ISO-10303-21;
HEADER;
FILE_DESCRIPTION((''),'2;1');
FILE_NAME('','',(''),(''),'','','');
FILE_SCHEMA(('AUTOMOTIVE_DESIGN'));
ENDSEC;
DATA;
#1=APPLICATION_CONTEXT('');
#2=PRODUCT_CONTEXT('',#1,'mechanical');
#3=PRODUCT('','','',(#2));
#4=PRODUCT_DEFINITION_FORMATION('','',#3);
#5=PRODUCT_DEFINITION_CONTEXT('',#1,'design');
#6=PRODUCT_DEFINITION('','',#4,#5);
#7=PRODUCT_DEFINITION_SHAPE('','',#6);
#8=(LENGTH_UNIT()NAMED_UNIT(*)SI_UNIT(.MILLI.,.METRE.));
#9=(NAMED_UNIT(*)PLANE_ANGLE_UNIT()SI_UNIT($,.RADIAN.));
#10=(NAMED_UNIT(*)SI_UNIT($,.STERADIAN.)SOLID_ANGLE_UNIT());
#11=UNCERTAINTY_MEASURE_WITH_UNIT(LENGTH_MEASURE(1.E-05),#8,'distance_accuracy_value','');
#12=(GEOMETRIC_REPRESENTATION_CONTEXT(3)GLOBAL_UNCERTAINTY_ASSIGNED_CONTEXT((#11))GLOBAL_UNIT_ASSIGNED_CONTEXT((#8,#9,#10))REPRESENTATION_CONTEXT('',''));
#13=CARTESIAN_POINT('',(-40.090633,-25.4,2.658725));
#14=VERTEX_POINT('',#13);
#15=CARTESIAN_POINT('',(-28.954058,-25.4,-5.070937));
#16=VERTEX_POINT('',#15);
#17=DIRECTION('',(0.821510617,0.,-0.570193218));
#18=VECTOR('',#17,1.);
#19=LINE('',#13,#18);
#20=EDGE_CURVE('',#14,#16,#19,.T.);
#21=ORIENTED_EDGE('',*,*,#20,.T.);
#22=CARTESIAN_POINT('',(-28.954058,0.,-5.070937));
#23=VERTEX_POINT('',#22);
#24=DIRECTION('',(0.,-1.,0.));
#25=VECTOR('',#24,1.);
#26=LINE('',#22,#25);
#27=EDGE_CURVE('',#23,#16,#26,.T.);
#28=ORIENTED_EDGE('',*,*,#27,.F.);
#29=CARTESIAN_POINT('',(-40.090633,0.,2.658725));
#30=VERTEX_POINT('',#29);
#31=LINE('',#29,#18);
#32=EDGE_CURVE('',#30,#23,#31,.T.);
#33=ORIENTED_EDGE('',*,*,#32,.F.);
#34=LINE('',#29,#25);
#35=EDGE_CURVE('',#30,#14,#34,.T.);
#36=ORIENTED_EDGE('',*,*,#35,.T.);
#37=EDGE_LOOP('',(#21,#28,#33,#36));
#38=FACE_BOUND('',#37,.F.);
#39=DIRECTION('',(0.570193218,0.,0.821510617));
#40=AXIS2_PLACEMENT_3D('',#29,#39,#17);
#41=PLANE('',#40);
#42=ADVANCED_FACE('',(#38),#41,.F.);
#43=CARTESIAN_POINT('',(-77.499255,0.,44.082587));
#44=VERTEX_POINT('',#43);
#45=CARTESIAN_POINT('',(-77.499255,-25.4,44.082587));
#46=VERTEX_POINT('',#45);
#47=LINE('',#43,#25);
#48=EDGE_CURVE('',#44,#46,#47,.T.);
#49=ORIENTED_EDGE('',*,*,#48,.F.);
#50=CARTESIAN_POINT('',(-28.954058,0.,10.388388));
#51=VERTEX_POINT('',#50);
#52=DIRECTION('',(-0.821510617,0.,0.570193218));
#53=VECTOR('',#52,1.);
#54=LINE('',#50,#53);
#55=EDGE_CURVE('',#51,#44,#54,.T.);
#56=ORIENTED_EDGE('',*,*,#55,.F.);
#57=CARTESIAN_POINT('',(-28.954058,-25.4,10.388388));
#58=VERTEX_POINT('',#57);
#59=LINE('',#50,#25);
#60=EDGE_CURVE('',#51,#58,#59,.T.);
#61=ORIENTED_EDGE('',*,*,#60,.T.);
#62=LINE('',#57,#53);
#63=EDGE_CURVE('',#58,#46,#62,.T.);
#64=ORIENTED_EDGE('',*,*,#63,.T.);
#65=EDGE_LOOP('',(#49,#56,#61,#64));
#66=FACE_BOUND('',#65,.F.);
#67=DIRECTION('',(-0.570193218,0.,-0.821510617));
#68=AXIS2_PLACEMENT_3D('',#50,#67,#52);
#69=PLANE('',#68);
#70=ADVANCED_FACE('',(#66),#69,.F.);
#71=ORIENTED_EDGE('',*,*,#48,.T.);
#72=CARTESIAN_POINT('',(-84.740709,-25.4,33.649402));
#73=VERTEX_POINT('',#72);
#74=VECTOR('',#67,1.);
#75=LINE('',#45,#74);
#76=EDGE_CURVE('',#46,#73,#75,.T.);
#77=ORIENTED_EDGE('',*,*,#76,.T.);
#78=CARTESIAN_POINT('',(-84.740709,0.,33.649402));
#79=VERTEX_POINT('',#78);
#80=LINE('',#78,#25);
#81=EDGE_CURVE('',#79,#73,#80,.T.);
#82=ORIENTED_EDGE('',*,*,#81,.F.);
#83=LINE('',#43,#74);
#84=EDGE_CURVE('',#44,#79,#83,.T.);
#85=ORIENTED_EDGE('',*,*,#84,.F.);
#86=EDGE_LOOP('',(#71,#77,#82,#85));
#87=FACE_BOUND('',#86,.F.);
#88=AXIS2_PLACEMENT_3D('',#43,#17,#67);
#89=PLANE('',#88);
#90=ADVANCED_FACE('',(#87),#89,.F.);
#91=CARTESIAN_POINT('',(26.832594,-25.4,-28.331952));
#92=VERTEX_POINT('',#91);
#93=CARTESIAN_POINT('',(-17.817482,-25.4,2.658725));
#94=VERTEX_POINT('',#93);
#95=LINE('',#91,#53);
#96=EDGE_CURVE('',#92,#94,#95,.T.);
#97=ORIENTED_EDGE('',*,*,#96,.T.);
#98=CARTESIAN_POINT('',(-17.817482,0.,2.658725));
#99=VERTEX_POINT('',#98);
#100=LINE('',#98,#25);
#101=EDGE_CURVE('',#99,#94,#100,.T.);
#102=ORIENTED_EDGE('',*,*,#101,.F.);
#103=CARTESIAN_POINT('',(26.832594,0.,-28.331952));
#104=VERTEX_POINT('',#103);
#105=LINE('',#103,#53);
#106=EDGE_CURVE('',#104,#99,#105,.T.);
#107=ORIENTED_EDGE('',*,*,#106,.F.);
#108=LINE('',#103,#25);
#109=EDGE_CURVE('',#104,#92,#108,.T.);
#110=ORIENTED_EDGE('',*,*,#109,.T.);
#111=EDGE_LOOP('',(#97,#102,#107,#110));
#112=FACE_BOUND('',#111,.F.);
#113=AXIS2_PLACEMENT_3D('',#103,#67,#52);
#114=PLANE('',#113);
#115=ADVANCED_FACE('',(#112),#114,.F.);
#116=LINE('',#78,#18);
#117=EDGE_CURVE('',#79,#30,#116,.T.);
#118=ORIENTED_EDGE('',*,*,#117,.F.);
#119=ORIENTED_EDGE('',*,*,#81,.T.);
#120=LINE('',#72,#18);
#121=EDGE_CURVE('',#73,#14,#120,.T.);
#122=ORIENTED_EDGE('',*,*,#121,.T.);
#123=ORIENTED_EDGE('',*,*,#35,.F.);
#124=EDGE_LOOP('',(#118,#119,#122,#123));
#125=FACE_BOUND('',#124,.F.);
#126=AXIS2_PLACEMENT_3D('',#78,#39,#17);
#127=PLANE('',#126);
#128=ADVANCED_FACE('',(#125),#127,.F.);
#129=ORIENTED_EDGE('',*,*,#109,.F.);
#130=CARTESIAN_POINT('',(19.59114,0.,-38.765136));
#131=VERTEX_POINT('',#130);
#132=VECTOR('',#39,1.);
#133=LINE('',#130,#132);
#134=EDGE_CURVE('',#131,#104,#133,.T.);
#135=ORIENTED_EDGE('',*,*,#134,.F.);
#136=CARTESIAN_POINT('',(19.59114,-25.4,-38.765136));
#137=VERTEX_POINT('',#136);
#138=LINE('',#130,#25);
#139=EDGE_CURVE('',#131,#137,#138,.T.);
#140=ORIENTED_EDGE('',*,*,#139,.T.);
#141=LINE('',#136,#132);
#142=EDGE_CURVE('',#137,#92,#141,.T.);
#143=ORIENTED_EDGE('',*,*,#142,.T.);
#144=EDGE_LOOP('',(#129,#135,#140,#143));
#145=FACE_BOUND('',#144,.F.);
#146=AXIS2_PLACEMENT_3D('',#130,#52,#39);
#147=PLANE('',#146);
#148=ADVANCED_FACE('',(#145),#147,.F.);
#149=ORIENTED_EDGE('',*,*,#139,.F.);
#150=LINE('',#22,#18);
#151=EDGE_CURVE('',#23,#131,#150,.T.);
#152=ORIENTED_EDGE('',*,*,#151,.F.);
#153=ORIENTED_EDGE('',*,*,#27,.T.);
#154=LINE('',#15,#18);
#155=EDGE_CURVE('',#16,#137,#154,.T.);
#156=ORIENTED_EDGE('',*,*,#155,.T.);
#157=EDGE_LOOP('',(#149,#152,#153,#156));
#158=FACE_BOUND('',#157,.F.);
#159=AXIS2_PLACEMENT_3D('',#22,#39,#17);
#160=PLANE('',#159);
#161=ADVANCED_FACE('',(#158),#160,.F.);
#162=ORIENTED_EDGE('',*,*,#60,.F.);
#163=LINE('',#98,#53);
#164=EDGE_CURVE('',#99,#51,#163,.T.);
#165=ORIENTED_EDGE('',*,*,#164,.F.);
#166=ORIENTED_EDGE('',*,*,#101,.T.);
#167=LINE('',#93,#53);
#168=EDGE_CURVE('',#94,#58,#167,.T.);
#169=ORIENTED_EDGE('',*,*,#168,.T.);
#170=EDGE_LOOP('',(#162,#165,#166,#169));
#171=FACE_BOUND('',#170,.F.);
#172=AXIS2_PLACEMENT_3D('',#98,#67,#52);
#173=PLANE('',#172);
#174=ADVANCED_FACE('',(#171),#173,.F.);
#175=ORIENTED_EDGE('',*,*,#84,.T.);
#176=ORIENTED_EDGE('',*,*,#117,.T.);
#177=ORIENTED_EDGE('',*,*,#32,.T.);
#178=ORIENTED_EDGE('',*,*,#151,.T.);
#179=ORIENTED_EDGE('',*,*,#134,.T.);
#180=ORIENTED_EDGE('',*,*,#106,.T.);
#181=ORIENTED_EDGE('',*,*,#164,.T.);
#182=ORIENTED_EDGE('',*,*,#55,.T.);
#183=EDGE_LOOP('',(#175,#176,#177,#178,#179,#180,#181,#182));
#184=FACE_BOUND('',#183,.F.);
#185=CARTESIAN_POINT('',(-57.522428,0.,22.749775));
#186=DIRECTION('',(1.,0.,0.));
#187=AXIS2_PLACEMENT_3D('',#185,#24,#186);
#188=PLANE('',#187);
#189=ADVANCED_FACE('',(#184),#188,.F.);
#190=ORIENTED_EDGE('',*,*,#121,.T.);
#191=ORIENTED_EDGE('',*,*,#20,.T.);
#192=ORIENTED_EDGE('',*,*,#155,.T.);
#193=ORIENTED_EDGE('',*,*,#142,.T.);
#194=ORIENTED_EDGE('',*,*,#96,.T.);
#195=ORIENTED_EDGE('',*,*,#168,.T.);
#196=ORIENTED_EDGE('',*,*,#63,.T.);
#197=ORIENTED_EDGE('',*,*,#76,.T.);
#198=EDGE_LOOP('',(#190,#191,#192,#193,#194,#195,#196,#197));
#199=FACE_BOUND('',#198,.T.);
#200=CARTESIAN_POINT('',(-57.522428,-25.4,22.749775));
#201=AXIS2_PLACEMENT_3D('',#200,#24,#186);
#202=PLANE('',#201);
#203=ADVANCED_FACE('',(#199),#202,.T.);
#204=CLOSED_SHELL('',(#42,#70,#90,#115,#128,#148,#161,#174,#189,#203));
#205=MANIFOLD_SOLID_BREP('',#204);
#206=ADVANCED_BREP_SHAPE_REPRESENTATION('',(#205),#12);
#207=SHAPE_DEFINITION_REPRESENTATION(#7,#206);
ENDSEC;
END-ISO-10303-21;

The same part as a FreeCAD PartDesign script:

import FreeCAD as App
import Part
import Sketcher
Q = App.Units.Quantity


def add_polygon(sketch, points):
    """Adds a closed chain of lines whose ends are joined by coincident constraints."""
    first, n = sketch.GeometryCount, len(points)
    for a, b in zip(points, points[1:] + points[:1]):
        sketch.addGeometry(Part.LineSegment(App.Vector(*a, 0), App.Vector(*b, 0)), False)
    for i in range(n):
        sketch.addConstraint(Sketcher.Constraint("Coincident", first + i, 2, first + (i + 1) % n, 1))

doc = App.newDocument("Part")
params = doc.addObject("Spreadsheet::Sheet", "Params")
for row, (alias, value) in enumerate([
    ("sketch1_length", "0.5 in"),
    ("pad1_length", "1 in"),
], start=1):
    params.set(f"A{row}", alias)
    params.set(f"B{row}", "=" + value)
    params.setAlias(f"B{row}", alias)

body = doc.addObject("PartDesign::Body", "Body")

# Sketch on XZ plane
sketch1 = body.newObject("Sketcher::SketchObject", "Sketch")
sketch1.AttachmentSupport = (doc.getObject("XZ_Plane"), [""])
sketch1.MapMode = "FlatFace"
add_polygon(sketch1, [(-29, 10), (-77, 44), (-85, 34), (-40, 3), (-29, -5), (20, -39), (27, -28), (-18, 3)])  # lines 0-7
sketch1.addConstraint(Sketcher.Constraint("Perpendicular", 0, 1))
sketch1.addConstraint(Sketcher.Constraint("Perpendicular", 1, 2))
sketch1.addConstraint(Sketcher.Constraint("Parallel", 2, 3))
sketch1.addConstraint(Sketcher.Constraint("Parallel", 3, 4))
sketch1.addConstraint(Sketcher.Constraint("Perpendicular", 4, 5))
sketch1.addConstraint(Sketcher.Constraint("Perpendicular", 5, 6))
sketch1.addConstraint(Sketcher.Constraint("Parallel", 6, 7))
sketch1.addConstraint(Sketcher.Constraint("Horizontal", 2, 2, 6, 2))
sketch1.addConstraint(Sketcher.Constraint("Vertical", 3, 2, 7, 2))
sketch1.addConstraint(Sketcher.Constraint("Equal", 0, 4))
sketch1.addConstraint(Sketcher.Constraint("Equal", 2, 6))
sketch1.addConstraint(Sketcher.Constraint("Distance", 1, Q("0.5 in")))
sketch1.addConstraint(Sketcher.Constraint("Distance", 0, 59.092599))
sketch1.addConstraint(Sketcher.Constraint("DistanceY", 4, 2, 3, 2, 33.694199))
sketch1.addConstraint(Sketcher.Constraint("DistanceX", 1, 2, -1, 1, 84.740709))
sketch1.addConstraint(Sketcher.Constraint("DistanceY", 5, 2, -1, 1, 28.331952))
sketch1.setExpression("Constraints[19]", "Params.sketch1_length")
pad1 = body.newObject("PartDesign::Pad", "Pad")
pad1.Profile = sketch1
pad1.setExpression("Length", "Params.pad1_length")

doc.recompute()
